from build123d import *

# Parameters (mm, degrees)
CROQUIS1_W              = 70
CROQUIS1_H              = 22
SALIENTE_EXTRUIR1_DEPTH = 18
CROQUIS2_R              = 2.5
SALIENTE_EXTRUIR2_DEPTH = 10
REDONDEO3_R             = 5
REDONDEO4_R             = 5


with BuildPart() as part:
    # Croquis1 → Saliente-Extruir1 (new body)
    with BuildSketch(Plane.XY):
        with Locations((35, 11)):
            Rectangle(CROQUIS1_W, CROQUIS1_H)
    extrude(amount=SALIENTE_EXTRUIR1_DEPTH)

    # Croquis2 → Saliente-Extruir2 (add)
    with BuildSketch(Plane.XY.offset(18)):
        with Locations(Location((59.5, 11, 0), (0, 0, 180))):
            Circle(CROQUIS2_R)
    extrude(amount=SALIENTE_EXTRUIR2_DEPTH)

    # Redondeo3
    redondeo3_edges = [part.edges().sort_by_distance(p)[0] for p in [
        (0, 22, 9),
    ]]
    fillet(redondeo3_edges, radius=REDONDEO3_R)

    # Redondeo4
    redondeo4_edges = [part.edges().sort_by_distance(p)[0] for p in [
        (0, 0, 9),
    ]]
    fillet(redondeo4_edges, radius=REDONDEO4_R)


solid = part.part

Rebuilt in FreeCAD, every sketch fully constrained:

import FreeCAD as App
import Part
import Sketcher
Q = App.Units.Quantity


def edges_at(feature, points):
    """Names of the edges that pass closest to the given points."""
    edges = feature.Shape.Edges
    near = lambda p: min(range(len(edges)), key=lambda i: edges[i].distToShape(Part.Vertex(*p))[0])
    return sorted({f"Edge{near(p) + 1}" for p in points})

doc = App.newDocument("Part")
body = doc.addObject("PartDesign::Body", "Body")

# Sketch on XY plane
sketch1 = doc.addObject("Sketcher::SketchObject", "Sketch")
body.addObject(sketch1)
sketch1.AttachmentSupport = (doc.XY_Plane, [""])
sketch1.MapMode = "FlatFace"
sketch1.addGeometry([
    Part.LineSegment(App.Vector(0, 22, 0), App.Vector(0, 0, 0)),
    Part.LineSegment(App.Vector(0, 0, 0), App.Vector(70, 0, 0)),
    Part.LineSegment(App.Vector(70, 0, 0), App.Vector(70, 22, 0)),
    Part.LineSegment(App.Vector(70, 22, 0), App.Vector(0, 22, 0)),
], False)
sketch1.addConstraint([
    Sketcher.Constraint("Coincident", 0, 2, 1, 1),
    Sketcher.Constraint("Coincident", 1, 2, 2, 1),
    Sketcher.Constraint("Coincident", 2, 2, 3, 1),
    Sketcher.Constraint("Coincident", 3, 2, 0, 1),
    Sketcher.Constraint("Vertical", 0),
    Sketcher.Constraint("Horizontal", 1),
    Sketcher.Constraint("Vertical", 2),
    Sketcher.Constraint("Horizontal", 3),
    Sketcher.Constraint("Coincident", 0, 2, -1, 1),
    Sketcher.Constraint("DistanceX", 1, 1, 1, 2, Q("70 mm")),
    Sketcher.Constraint("DistanceY", 0, 2, 0, 1, Q("22 mm")),
])
pad1 = doc.addObject("PartDesign::Pad", "Pad")
body.addObject(pad1)
pad1.Profile = sketch1
pad1.Length = 18

# Sketch on XY plane
sketch2 = doc.addObject("Sketcher::SketchObject", "Sketch001")
body.addObject(sketch2)
sketch2.AttachmentSupport = (doc.XY_Plane, [""])
sketch2.MapMode = "FlatFace"
sketch2.AttachmentOffset = App.Placement(App.Vector(0, 0, 18), App.Rotation())
sketch2.addGeometry(Part.Circle(App.Vector(59.5, 11, 0), App.Vector(0, 0, 1), 2.5), False)
sketch2.addConstraint([
    Sketcher.Constraint("Diameter", 0, Q("5 mm")),
    Sketcher.Constraint("DistanceY", -1, 1, 0, 3, Q("11 mm")),
    Sketcher.Constraint("DistanceX", -1, 1, 0, 3, Q("59.5 mm")),
])
pad2 = doc.addObject("PartDesign::Pad", "Pad001")
body.addObject(pad2)
pad2.Profile = sketch2
pad2.Length = 10
doc.recompute()

fillet = doc.addObject("PartDesign::Fillet", "Fillet")
body.addObject(fillet)
fillet.Base = (pad2, edges_at(pad2, [(0, 22, 9)]))
fillet.Radius = 5
doc.recompute()

fillet2 = doc.addObject("PartDesign::Fillet", "Fillet001")
body.addObject(fillet2)
fillet2.Base = (fillet, edges_at(fillet, [(0, 0, 9)]))
fillet2.Radius = 5

doc.recompute()
